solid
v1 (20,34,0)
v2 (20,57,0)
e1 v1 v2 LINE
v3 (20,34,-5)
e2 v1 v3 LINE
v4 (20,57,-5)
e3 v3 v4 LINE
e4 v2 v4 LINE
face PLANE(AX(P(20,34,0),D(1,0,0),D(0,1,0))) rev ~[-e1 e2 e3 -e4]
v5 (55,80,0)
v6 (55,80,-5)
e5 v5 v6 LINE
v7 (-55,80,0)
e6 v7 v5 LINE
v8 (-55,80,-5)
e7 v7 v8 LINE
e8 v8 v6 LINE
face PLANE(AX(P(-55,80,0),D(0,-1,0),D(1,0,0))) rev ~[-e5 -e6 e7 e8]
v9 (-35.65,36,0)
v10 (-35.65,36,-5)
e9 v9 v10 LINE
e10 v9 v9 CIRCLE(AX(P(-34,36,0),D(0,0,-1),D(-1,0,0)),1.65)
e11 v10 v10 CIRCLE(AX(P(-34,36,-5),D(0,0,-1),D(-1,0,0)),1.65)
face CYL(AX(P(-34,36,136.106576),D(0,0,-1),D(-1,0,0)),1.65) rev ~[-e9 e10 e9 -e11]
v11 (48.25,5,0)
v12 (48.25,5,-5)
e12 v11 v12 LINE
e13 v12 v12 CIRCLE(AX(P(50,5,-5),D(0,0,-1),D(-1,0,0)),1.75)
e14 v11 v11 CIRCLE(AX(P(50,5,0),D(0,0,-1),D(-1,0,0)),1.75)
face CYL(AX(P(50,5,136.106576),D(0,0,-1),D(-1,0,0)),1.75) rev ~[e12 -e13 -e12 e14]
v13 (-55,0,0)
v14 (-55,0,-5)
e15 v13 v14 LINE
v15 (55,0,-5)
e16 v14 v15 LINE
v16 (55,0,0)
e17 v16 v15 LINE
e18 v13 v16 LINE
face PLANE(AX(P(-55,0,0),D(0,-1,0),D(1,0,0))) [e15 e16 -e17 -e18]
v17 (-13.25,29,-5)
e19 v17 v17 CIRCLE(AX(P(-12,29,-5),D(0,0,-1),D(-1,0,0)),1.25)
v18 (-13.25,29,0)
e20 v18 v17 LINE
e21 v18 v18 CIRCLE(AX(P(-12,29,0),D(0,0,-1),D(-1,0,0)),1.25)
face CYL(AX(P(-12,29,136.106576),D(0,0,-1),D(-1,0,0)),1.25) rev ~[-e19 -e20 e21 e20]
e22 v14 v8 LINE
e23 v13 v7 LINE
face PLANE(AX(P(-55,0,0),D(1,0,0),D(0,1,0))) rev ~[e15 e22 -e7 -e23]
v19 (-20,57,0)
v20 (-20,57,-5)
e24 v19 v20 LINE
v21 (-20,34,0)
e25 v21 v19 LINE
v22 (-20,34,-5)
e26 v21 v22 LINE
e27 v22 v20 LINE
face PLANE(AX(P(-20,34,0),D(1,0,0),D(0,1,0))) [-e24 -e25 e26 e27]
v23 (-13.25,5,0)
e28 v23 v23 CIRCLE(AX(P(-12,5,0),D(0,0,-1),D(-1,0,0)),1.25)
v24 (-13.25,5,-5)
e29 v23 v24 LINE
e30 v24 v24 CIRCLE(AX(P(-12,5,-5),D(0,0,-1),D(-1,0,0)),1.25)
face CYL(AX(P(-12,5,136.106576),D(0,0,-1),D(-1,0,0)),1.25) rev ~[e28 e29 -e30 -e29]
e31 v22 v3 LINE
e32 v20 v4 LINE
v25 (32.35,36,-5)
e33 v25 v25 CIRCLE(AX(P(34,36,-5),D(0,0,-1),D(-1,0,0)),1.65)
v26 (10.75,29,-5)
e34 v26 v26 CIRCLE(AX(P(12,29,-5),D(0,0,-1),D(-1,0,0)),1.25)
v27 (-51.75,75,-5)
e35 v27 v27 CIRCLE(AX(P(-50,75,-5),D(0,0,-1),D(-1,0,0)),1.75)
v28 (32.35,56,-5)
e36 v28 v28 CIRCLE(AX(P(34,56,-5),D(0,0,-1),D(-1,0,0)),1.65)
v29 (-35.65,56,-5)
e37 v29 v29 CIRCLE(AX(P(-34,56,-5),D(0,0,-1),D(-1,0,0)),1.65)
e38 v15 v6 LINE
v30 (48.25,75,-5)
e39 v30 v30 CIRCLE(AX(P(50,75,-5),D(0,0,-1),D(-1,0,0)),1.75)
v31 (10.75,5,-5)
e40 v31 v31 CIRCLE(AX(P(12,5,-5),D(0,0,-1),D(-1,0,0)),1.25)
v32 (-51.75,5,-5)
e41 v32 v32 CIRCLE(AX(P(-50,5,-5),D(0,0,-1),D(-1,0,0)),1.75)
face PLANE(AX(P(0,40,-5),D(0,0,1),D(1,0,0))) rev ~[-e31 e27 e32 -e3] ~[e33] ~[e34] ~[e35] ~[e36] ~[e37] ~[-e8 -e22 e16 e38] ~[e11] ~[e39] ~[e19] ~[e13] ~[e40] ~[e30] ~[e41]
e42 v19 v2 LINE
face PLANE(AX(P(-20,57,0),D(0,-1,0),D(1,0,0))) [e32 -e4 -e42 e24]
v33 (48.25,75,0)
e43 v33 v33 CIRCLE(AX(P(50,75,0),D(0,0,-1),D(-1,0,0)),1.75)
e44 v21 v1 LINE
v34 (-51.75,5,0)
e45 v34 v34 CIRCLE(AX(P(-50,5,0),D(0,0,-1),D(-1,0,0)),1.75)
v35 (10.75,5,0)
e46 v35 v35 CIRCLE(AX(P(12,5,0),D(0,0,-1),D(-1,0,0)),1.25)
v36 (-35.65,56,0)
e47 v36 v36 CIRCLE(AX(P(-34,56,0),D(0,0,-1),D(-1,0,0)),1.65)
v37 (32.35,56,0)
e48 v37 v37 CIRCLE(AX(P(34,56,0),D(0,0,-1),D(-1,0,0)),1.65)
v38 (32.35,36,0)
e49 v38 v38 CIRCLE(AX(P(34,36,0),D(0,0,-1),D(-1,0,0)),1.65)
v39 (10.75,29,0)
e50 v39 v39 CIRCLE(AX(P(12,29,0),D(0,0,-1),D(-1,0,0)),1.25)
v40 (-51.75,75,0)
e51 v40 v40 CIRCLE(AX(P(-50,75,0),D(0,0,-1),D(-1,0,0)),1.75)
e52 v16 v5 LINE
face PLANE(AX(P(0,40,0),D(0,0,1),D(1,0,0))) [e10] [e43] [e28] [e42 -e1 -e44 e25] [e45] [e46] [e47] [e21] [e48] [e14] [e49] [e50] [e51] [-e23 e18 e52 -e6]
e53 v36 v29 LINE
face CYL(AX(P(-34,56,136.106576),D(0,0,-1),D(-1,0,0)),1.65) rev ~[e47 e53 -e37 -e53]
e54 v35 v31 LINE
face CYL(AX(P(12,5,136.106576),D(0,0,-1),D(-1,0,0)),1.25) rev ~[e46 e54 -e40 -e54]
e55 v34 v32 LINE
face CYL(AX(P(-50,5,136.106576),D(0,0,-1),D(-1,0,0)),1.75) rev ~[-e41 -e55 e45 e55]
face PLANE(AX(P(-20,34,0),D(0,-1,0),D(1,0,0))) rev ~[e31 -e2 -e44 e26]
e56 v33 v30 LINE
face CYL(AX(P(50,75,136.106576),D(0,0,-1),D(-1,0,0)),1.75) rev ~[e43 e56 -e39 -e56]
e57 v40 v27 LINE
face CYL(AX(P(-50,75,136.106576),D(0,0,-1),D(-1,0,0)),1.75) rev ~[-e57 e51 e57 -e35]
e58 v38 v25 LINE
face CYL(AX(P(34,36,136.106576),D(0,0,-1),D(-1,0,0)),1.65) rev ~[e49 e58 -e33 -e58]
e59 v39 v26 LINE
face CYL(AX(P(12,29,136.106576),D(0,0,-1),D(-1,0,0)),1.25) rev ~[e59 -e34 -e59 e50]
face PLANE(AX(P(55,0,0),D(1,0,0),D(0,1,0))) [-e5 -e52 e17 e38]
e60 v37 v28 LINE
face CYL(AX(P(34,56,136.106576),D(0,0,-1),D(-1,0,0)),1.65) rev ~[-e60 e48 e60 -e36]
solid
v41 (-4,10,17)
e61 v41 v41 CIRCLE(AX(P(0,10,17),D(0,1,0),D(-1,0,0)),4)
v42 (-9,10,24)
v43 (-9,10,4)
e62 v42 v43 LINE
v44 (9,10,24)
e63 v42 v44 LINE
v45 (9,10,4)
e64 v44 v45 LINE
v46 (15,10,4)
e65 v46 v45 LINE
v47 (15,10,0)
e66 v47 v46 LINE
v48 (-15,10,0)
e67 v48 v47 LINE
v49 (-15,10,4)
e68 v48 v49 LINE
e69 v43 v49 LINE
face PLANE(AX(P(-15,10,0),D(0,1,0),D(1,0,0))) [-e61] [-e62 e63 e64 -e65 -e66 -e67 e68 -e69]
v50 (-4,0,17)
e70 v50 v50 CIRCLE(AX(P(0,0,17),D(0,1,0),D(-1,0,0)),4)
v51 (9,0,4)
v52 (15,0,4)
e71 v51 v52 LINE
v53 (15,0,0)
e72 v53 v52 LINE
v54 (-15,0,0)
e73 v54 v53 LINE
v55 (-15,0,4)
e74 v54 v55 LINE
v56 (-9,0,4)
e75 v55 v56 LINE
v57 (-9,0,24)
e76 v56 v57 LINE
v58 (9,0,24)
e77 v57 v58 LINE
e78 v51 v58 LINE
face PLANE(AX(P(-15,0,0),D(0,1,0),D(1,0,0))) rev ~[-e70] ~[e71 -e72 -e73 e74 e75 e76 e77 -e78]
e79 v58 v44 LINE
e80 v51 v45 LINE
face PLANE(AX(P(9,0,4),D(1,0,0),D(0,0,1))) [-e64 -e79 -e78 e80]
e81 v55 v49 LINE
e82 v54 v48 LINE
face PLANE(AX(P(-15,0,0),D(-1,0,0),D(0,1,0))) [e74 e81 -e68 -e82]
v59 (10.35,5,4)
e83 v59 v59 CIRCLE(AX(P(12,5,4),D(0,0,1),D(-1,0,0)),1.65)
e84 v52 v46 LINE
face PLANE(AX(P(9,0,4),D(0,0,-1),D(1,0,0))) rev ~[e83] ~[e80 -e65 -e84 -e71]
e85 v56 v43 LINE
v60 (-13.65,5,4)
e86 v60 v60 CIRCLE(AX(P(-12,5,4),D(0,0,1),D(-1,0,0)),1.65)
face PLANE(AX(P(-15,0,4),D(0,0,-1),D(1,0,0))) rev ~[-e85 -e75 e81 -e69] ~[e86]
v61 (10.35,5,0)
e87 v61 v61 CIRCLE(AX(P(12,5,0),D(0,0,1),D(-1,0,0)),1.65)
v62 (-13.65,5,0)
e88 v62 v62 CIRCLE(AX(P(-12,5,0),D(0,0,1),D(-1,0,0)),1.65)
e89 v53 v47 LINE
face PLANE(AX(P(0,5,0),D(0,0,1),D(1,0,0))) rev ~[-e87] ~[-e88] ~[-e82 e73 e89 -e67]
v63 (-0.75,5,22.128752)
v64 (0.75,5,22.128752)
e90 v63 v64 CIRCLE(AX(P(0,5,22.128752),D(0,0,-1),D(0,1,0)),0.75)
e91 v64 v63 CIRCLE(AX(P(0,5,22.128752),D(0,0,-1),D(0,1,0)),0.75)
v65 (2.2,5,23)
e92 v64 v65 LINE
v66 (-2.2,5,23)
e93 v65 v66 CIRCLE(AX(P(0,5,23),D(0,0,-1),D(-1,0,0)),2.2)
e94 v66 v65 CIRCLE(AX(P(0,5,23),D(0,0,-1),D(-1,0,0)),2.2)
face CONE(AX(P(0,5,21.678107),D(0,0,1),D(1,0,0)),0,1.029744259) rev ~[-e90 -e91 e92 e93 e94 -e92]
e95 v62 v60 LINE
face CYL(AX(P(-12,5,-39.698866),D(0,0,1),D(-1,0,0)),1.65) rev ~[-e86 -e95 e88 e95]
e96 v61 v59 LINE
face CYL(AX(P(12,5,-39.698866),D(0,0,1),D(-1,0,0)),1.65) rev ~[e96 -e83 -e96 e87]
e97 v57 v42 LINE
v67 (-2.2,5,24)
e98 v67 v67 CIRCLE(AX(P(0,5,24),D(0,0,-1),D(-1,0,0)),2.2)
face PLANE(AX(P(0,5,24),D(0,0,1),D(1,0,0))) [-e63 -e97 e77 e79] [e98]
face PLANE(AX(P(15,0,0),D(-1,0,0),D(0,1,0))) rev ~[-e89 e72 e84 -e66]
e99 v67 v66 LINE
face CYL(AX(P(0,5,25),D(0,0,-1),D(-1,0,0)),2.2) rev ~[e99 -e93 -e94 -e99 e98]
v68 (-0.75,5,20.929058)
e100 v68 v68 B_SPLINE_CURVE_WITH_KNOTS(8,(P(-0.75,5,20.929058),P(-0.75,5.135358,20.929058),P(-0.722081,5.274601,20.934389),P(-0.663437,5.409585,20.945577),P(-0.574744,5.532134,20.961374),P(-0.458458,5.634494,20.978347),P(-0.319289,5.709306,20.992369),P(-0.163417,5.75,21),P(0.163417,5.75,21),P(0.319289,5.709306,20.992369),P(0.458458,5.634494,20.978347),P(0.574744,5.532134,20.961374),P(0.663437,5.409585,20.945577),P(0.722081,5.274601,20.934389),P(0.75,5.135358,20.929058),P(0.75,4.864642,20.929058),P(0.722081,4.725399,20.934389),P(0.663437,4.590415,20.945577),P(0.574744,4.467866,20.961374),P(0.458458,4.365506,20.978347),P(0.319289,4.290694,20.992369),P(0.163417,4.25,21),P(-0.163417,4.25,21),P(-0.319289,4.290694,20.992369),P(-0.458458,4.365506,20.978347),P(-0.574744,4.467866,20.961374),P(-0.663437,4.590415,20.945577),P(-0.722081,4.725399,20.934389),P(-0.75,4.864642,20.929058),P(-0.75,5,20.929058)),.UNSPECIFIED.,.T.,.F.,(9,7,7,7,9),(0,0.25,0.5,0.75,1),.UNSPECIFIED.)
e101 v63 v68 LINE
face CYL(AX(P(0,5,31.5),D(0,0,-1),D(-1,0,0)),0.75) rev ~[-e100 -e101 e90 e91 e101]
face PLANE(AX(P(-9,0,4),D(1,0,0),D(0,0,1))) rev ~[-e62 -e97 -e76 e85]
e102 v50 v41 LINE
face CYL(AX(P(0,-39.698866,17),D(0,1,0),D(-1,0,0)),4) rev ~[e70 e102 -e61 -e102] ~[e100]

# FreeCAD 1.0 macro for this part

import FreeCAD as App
import Part
import Sketcher

V = App.Vector
Q = App.Units.Quantity


def add_polygon(sketch, points):
    """Adds a closed chain of lines whose ends are joined by coincident constraints."""
    first, n = sketch.GeometryCount, len(points)
    for a, b in zip(points, points[1:] + points[:1]):
        sketch.addGeometry(Part.LineSegment(App.Vector(*a, 0), App.Vector(*b, 0)), False)
    for i in range(n):
        sketch.addConstraint(Sketcher.Constraint("Coincident", first + i, 2, first + (i + 1) % n, 1))

doc = App.newDocument("Part")
body = doc.addObject("PartDesign::Body", "Body")

sketch1 = body.newObject("Sketcher::SketchObject", "Sketch")
sketch1.AttachmentSupport = (doc.getObject("XY_Plane"), [""])
sketch1.MapMode = "FlatFace"
add_polygon(sketch1, [(-55, 80), (-55, 0), (55, 0), (55, 80)])
sketch1.addConstraint([
    Sketcher.Constraint("Vertical", 0),
    Sketcher.Constraint("Horizontal", 1),
    Sketcher.Constraint("Vertical", 2),
    Sketcher.Constraint("Horizontal", 3),
    Sketcher.Constraint("Symmetric", 0, 2, 1, 2, -1, 1),
    Sketcher.Constraint("DistanceX", 1, 1, 1, 2, Q("110 mm")),
    Sketcher.Constraint("DistanceY", 0, 2, 0, 1, Q("80 mm")),
])
pad1 = body.newObject("PartDesign::Pad", "Pad")
pad1.Profile = sketch1
pad1.Length = 5
pad1.Reversed = True

sketch2 = body.newObject("Sketcher::SketchObject", "Sketch001")
sketch2.AttachmentSupport = (doc.getObject("XY_Plane"), [""])
sketch2.MapMode = "FlatFace"
add_polygon(sketch2, [(-20, 57), (-20, 34), (20, 34), (20, 57)])
sketch2.addConstraint([
    Sketcher.Constraint("Vertical", 0),
    Sketcher.Constraint("Horizontal", 1),
    Sketcher.Constraint("Vertical", 2),
    Sketcher.Constraint("Horizontal", 3),
    Sketcher.Constraint("DistanceX", 1, 1, 1, 2, Q("40 mm")),
    Sketcher.Constraint("DistanceY", 0, 2, 0, 1, Q("23 mm")),
    Sketcher.Constraint("DistanceX", 0, 2, -1, 1, Q("20 mm")),
    Sketcher.Constraint("DistanceY", -1, 1, 0, 2, Q("34 mm")),
])
pocket1 = body.newObject("PartDesign::Pocket", "Pocket")
pocket1.Profile = sketch2
pocket1.Type = "ThroughAll"

sketch3 = body.newObject("Sketcher::SketchObject", "Sketch002")
sketch3.AttachmentSupport = (doc.getObject("XY_Plane"), [""])
sketch3.MapMode = "FlatFace"
sketch3.addGeometry([
    Part.Circle(V(-12, 5, 0), V(0, 0, 1), 1.25),
    Part.Circle(V(12, 5, 0), V(0, 0, 1), 1.25),
    Part.Circle(V(12, 29, 0), V(0, 0, 1), 1.25),
    Part.Circle(V(-12, 29, 0), V(0, 0, 1), 1.25),
], False)
sketch3.addConstraint([
    Sketcher.Constraint("Equal", 0, 1),
    Sketcher.Constraint("Equal", 1, 2),
    Sketcher.Constraint("Equal", 2, 3),
    Sketcher.Constraint("Symmetric", 0, 3, 1, 3, -2),
    Sketcher.Constraint("Symmetric", 2, 3, 3, 3, -2),
    Sketcher.Constraint("Vertical", 1, 3, 2, 3),
    Sketcher.Constraint("Diameter", 0, Q("2.5 mm")),
    Sketcher.Constraint("DistanceX", 0, 3, -1, 1, Q("12 mm")),
    Sketcher.Constraint("DistanceY", -1, 1, 0, 3, Q("5 mm")),
    Sketcher.Constraint("DistanceY", -1, 1, 2, 3, Q("29 mm")),
])
doc.recompute()
hole = body.newObject("PartDesign::Hole", "Hole")
hole.Profile = sketch3
hole.ThreadType = "None"
hole.Diameter = 2.5
hole.DepthType = "ThroughAll"

sketch4 = body.newObject("Sketcher::SketchObject", "Sketch003")
sketch4.AttachmentSupport = (doc.getObject("XY_Plane"), [""])
sketch4.MapMode = "FlatFace"
sketch4.addGeometry([
    Part.Circle(V(-34, 36, 0), V(0, 0, 1), 1.65),
    Part.Circle(V(34, 36, 0), V(0, 0, 1), 1.65),
    Part.Circle(V(34, 56, 0), V(0, 0, 1), 1.65),
    Part.Circle(V(-34, 56, 0), V(0, 0, 1), 1.65),
], False)
sketch4.addConstraint([
    Sketcher.Constraint("Equal", 0, 1),
    Sketcher.Constraint("Equal", 1, 2),
    Sketcher.Constraint("Equal", 2, 3),
    Sketcher.Constraint("Symmetric", 0, 3, 1, 3, -2),
    Sketcher.Constraint("Symmetric", 2, 3, 3, 3, -2),
    Sketcher.Constraint("Vertical", 1, 3, 2, 3),
    Sketcher.Constraint("Diameter", 0, Q("3.3 mm")),
    Sketcher.Constraint("DistanceX", 0, 3, -1, 1, Q("34 mm")),
    Sketcher.Constraint("DistanceY", -1, 1, 0, 3, Q("36 mm")),
    Sketcher.Constraint("DistanceY", -1, 1, 2, 3, Q("56 mm")),
])
doc.recompute()
hole2 = body.newObject("PartDesign::Hole", "Hole001")
hole2.Profile = sketch4
hole2.ThreadType = "None"
hole2.Diameter = 3.3
hole2.DepthType = "ThroughAll"

sketch5 = body.newObject("Sketcher::SketchObject", "Sketch004")
sketch5.AttachmentSupport = (doc.getObject("XY_Plane"), [""])
sketch5.MapMode = "FlatFace"
sketch5.addGeometry([
    Part.Circle(V(-50, 5, 0), V(0, 0, 1), 1.75),
    Part.Circle(V(50, 5, 0), V(0, 0, 1), 1.75),
    Part.Circle(V(50, 75, 0), V(0, 0, 1), 1.75),
    Part.Circle(V(-50, 75, 0), V(0, 0, 1), 1.75),
], False)
sketch5.addConstraint([
    Sketcher.Constraint("Equal", 0, 1),
    Sketcher.Constraint("Equal", 1, 2),
    Sketcher.Constraint("Equal", 2, 3),
    Sketcher.Constraint("Symmetric", 0, 3, 1, 3, -2),
    Sketcher.Constraint("Symmetric", 2, 3, 3, 3, -2),
    Sketcher.Constraint("Vertical", 1, 3, 2, 3),
    Sketcher.Constraint("Diameter", 0, Q("3.5 mm")),
    Sketcher.Constraint("DistanceX", 0, 3, -1, 1, Q("50 mm")),
    Sketcher.Constraint("DistanceY", -1, 1, 0, 3, Q("5 mm")),
    Sketcher.Constraint("DistanceY", -1, 1, 2, 3, Q("75 mm")),
])
doc.recompute()
hole3 = body.newObject("PartDesign::Hole", "Hole002")
hole3.Profile = sketch5
hole3.ThreadType = "None"
hole3.Diameter = 3.5
hole3.DepthType = "ThroughAll"
body2 = doc.addObject("PartDesign::Body", "Body001")

sketch6 = body2.newObject("Sketcher::SketchObject", "Sketch005")
sketch6.AttachmentSupport = (doc.getObject("XY_Plane001"), [""])
sketch6.MapMode = "FlatFace"
add_polygon(sketch6, [(-15, 10), (-15, 0), (15, 0), (15, 10)])
sketch6.addConstraint([
    Sketcher.Constraint("Vertical", 0),
    Sketcher.Constraint("Horizontal", 1),
    Sketcher.Constraint("Vertical", 2),
    Sketcher.Constraint("Horizontal", 3),
    Sketcher.Constraint("Symmetric", 0, 2, 1, 2, -1, 1),
    Sketcher.Constraint("DistanceX", 1, 1, 1, 2, Q("30 mm")),
    Sketcher.Constraint("DistanceY", 0, 2, 0, 1, Q("10 mm")),
])
pad2 = body2.newObject("PartDesign::Pad", "Pad001")
pad2.Profile = sketch6
pad2.Length = 24

sketch7 = body2.newObject("Sketcher::SketchObject", "Sketch006")
sketch7.AttachmentSupport = (doc.getObject("XZ_Plane001"), [""])
sketch7.MapMode = "FlatFace"
add_polygon(sketch7, [(9, 24), (9, 4), (15, 4), (15, 24)])
add_polygon(sketch7, [(-15, 24), (-15, 4), (-9, 4), (-9, 24)])
sketch7.addConstraint([
    Sketcher.Constraint("Vertical", 0),
    Sketcher.Constraint("Horizontal", 1),
    Sketcher.Constraint("Vertical", 2),
    Sketcher.Constraint("Horizontal", 3),
    Sketcher.Constraint("Vertical", 4),
    Sketcher.Constraint("Horizontal", 5),
    Sketcher.Constraint("Vertical", 6),
    Sketcher.Constraint("Horizontal", 7),
    Sketcher.Constraint("Symmetric", 1, 2, 4, 2, -2),
    Sketcher.Constraint("Symmetric", 3, 2, 6, 2, -2),
    Sketcher.Constraint("DistanceX", 1, 1, 1, 2, Q("6 mm")),
    Sketcher.Constraint("DistanceY", 0, 2, 0, 1, Q("20 mm")),
    Sketcher.Constraint("DistanceX", -1, 1, 0, 2, Q("9 mm")),
    Sketcher.Constraint("DistanceY", -1, 1, 0, 2, Q("4 mm")),
])
pocket2 = body2.newObject("PartDesign::Pocket", "Pocket001")
pocket2.Profile = sketch7
pocket2.Type = "ThroughAll"

sketch8 = body2.newObject("Sketcher::SketchObject", "Sketch007")
sketch8.AttachmentSupport = (doc.getObject("XY_Plane001"), [""])
sketch8.MapMode = "FlatFace"
sketch8.addGeometry([
    Part.Circle(V(-12, 5, 0), V(0, 0, 1), 1.65),
    Part.Circle(V(12, 5, 0), V(0, 0, 1), 1.65),
], False)
sketch8.addConstraint([
    Sketcher.Constraint("Equal", 0, 1),
    Sketcher.Constraint("Symmetric", 0, 3, 1, 3, -2),
    Sketcher.Constraint("Diameter", 0, Q("3.3 mm")),
    Sketcher.Constraint("DistanceX", 0, 3, -1, 1, Q("12 mm")),
    Sketcher.Constraint("DistanceY", -1, 1, 0, 3, Q("5 mm")),
])
doc.recompute()
hole4 = body2.newObject("PartDesign::Hole", "Hole003")
hole4.Profile = sketch8
hole4.ThreadType = "None"
hole4.Diameter = 3.3
hole4.DepthType = "ThroughAll"
hole4.Reversed = True

sketch9 = body2.newObject("Sketcher::SketchObject", "Sketch008")
sketch9.AttachmentSupport = (doc.getObject("XZ_Plane001"), [""])
sketch9.MapMode = "FlatFace"
sketch9.addGeometry(Part.Circle(V(0, 17, 0), V(0, 0, 1), 4), False)
sketch9.addConstraint([
    Sketcher.Constraint("PointOnObject", 0, 3, -2),
    Sketcher.Constraint("Diameter", 0, Q("8 mm")),
    Sketcher.Constraint("DistanceY", -1, 1, 0, 3, Q("17 mm")),
])
doc.recompute()
hole5 = body2.newObject("PartDesign::Hole", "Hole004")
hole5.Profile = sketch9
hole5.ThreadType = "None"
hole5.Diameter = 8
hole5.DepthType = "ThroughAll"

sketch10 = body2.newObject("Sketcher::SketchObject", "Sketch009")
sketch10.AttachmentSupport = (doc.getObject("XY_Plane001"), [""])
sketch10.MapMode = "FlatFace"
sketch10.AttachmentOffset = App.Placement(V(0, 0, 24), App.Rotation())
sketch10.addGeometry(Part.Circle(V(0, 5, 0), V(0, 0, 1), 0.75), False)
sketch10.addConstraint([
    Sketcher.Constraint("PointOnObject", 0, 3, -2),
    Sketcher.Constraint("Diameter", 0, Q("1.5 mm")),
    Sketcher.Constraint("DistanceY", -1, 1, 0, 3, Q("5 mm")),
])
doc.recompute()
hole6 = body2.newObject("PartDesign::Hole", "Hole005")
hole6.Profile = sketch10
hole6.ThreadType = "None"
hole6.Diameter = 1.5
hole6.DepthType = "Dimension"
hole6.Depth = 7.5
hole6.DrillPoint = "Angled"
hole6.DrillPointAngle = 118

sketch11 = body2.newObject("Sketcher::SketchObject", "Sketch010")
sketch11.AttachmentSupport = (doc.getObject("XY_Plane001"), [""])
sketch11.MapMode = "FlatFace"
sketch11.AttachmentOffset = App.Placement(V(0, 0, 24), App.Rotation())
sketch11.addGeometry(Part.Circle(V(0, 5, 0), V(0, 0, 1), 2.2), False)
sketch11.addConstraint([
    Sketcher.Constraint("PointOnObject", 0, 3, -2),
    Sketcher.Constraint("Diameter", 0, Q("4.4 mm")),
    Sketcher.Constraint("DistanceY", -1, 1, 0, 3, Q("5 mm")),
])
doc.recompute()
hole7 = body2.newObject("PartDesign::Hole", "Hole006")
hole7.Profile = sketch11
hole7.ThreadType = "None"
hole7.Diameter = 4.4
hole7.DepthType = "Dimension"
hole7.Depth = 1
hole7.DrillPoint = "Angled"
hole7.DrillPointAngle = 118

doc.recompute()
